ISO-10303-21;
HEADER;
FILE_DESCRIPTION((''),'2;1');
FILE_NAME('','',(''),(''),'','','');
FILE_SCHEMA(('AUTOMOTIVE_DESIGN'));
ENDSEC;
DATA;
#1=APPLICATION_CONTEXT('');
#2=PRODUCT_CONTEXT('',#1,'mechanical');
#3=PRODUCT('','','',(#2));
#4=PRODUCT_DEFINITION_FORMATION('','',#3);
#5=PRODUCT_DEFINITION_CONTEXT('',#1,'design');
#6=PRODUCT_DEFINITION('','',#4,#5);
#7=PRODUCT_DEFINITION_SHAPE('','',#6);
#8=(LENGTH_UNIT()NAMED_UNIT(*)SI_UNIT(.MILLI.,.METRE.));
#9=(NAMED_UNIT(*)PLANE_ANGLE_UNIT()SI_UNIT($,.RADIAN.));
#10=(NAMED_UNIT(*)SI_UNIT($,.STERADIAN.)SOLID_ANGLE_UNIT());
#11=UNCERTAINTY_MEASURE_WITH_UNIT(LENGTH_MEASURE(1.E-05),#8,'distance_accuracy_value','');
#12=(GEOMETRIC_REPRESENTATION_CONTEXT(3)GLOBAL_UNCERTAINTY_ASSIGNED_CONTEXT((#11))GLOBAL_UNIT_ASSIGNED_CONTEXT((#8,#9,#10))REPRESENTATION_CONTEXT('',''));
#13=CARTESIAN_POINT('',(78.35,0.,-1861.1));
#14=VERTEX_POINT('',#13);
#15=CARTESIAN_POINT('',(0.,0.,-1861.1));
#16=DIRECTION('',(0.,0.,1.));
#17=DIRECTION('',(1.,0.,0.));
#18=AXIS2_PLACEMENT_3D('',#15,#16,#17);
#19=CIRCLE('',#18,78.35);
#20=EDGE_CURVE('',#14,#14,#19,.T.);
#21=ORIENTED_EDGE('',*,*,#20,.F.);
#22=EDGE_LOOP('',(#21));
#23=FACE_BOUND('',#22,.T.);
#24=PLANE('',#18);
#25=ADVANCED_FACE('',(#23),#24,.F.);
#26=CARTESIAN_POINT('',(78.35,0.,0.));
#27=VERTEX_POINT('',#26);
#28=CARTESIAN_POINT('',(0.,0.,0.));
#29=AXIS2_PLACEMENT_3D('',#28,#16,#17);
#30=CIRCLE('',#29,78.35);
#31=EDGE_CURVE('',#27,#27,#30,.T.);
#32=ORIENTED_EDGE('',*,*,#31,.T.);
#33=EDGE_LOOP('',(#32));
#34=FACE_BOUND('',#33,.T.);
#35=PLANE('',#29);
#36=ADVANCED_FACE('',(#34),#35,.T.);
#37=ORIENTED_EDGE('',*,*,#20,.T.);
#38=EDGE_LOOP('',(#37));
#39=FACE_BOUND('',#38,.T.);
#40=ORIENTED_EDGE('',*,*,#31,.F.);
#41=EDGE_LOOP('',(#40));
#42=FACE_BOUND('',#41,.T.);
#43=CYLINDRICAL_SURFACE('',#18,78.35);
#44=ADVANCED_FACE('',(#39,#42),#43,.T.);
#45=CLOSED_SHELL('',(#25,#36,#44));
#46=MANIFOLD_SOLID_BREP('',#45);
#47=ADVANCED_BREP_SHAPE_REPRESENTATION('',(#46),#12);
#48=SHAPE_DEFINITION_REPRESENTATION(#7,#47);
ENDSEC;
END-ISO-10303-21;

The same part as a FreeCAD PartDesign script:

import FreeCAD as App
import Part
import Sketcher
Q = App.Units.Quantity

doc = App.newDocument("Part")
body = doc.addObject("PartDesign::Body", "Body")

# Sketch on XY plane
sketch1 = doc.addObject("Sketcher::SketchObject", "Sketch")
body.addObject(sketch1)
sketch1.AttachmentSupport = (doc.XY_Plane, [""])
sketch1.MapMode = "FlatFace"
sketch1.addGeometry(Part.Circle(App.Vector(0, 0, 0), App.Vector(0, 0, 1), 78), False)
sketch1.addConstraint(Sketcher.Constraint("Coincident", 0, 3, -1, 1))
sketch1.addConstraint(Sketcher.Constraint("Diameter", 0, Q("156.7 mm")))
pad1 = doc.addObject("PartDesign::Pad", "Pad")
body.addObject(pad1)
pad1.Profile = sketch1
pad1.Length = 1861.1
pad1.Reversed = True

doc.recompute()
